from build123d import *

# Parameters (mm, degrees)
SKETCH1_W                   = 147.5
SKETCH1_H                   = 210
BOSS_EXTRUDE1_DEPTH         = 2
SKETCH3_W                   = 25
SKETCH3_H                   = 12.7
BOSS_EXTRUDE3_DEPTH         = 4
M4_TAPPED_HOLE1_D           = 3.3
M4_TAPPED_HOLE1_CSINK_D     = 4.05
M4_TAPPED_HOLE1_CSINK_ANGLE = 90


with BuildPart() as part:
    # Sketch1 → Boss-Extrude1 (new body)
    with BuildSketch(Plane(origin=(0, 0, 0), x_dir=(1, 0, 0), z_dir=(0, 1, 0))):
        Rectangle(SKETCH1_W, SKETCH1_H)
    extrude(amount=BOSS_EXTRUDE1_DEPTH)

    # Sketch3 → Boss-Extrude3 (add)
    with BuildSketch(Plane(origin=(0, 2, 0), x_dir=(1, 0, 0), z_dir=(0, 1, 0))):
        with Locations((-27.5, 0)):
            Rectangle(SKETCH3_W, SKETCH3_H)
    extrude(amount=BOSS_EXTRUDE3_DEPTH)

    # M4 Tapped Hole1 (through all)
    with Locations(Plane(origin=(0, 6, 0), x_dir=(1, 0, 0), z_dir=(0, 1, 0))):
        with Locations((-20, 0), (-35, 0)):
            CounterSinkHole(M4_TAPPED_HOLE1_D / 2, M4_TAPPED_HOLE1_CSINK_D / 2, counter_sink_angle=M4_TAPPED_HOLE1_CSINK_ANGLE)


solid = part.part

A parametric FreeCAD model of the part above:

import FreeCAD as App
import Part
import Sketcher

doc = App.newDocument("Part")
body = doc.addObject("PartDesign::Body", "Body")

# Sketch on XZ plane
sketch1 = body.newObject("Sketcher::SketchObject", "Sketch")
sketch1.AttachmentSupport = (doc.getObject("XZ_Plane"), [""])
sketch1.MapMode = "FlatFace"
sketch1.addGeometry([
    Part.LineSegment(App.Vector(-74, -105, 0), App.Vector(-74, 105, 0)),
    Part.LineSegment(App.Vector(-74, 105, 0), App.Vector(74, 105, 0)),
    Part.LineSegment(App.Vector(74, 105, 0), App.Vector(74, -105, 0)),
    Part.LineSegment(App.Vector(74, -105, 0), App.Vector(-74, -105, 0)),
], False)
sketch1.addConstraint([
    Sketcher.Constraint("Coincident", 0, 2, 1, 1),
    Sketcher.Constraint("Coincident", 1, 2, 2, 1),
    Sketcher.Constraint("Coincident", 2, 2, 3, 1),
    Sketcher.Constraint("Coincident", 3, 2, 0, 1),
    Sketcher.Constraint("Vertical", 0),
    Sketcher.Constraint("Horizontal", 1),
    Sketcher.Constraint("Vertical", 2),
    Sketcher.Constraint("Horizontal", 3),
    Sketcher.Constraint("Symmetric", 0, 2, 2, 2, -1, 1),
    Sketcher.Constraint("DistanceY", 0, 1, 0, 2, 210.0),
    Sketcher.Constraint("DistanceX", 1, 1, 1, 2, 147.5),
])
pad1 = body.newObject("PartDesign::Pad", "Pad")
pad1.Profile = sketch1
pad1.Length = 2
pad1.Reversed = True

# Sketch on XZ plane
sketch2 = body.newObject("Sketcher::SketchObject", "Sketch001")
sketch2.AttachmentSupport = (doc.getObject("XZ_Plane"), [""])
sketch2.MapMode = "FlatFace"
sketch2.AttachmentOffset = App.Placement(App.Vector(0, 0, -2), App.Rotation())
sketch2.addGeometry([
    Part.LineSegment(App.Vector(-40, -6, 0), App.Vector(-40, 6, 0)),
    Part.LineSegment(App.Vector(-40, 6, 0), App.Vector(-15, 6, 0)),
    Part.LineSegment(App.Vector(-15, 6, 0), App.Vector(-15, -6, 0)),
    Part.LineSegment(App.Vector(-15, -6, 0), App.Vector(-40, -6, 0)),
], False)
sketch2.addConstraint([
    Sketcher.Constraint("Coincident", 0, 2, 1, 1),
    Sketcher.Constraint("Coincident", 1, 2, 2, 1),
    Sketcher.Constraint("Coincident", 2, 2, 3, 1),
    Sketcher.Constraint("Coincident", 3, 2, 0, 1),
    Sketcher.Constraint("Vertical", 0),
    Sketcher.Constraint("Horizontal", 1),
    Sketcher.Constraint("Vertical", 2),
    Sketcher.Constraint("Horizontal", 3),
    Sketcher.Constraint("DistanceX", 1, 1, 1, 2, 25.0),
    Sketcher.Constraint("DistanceY", 0, 1, 0, 2, 12.7),
    Sketcher.Constraint("DistanceX", 0, 2, -1, 1, 40.0),
    Sketcher.Constraint("DistanceY", -1, 1, 0, 2, 6.35),
])
pad2 = body.newObject("PartDesign::Pad", "Pad001")
pad2.Profile = sketch2
pad2.Length = 4
pad2.Reversed = True

# Sketch on XZ plane
sketch3 = body.newObject("Sketcher::SketchObject", "Sketch002")
sketch3.AttachmentSupport = (doc.getObject("XZ_Plane"), [""])
sketch3.MapMode = "FlatFace"
sketch3.AttachmentOffset = App.Placement(App.Vector(0, 0, -6), App.Rotation())
sketch3.addGeometry([
    Part.Circle(App.Vector(-20, 0, 0), App.Vector(0, 0, 1), 1.6),
    Part.Circle(App.Vector(-35, 0, 0), App.Vector(0, 0, 1), 1.6),
], False)
sketch3.addConstraint([
    Sketcher.Constraint("Equal", 0, 1),
    Sketcher.Constraint("PointOnObject", 0, 3, -1),
    Sketcher.Constraint("PointOnObject", 1, 3, -1),
    Sketcher.Constraint("Diameter", 0, 3.3),
    Sketcher.Constraint("DistanceX", 0, 3, -1, 1, 20.0),
    Sketcher.Constraint("DistanceX", 1, 3, -1, 1, 35.0),
])
doc.recompute()
hole = body.newObject("PartDesign::Hole", "Hole")
hole.Profile = sketch3
hole.ThreadType = "None"
hole.Diameter = 3.3
hole.DepthType = "ThroughAll"
hole.HoleCutType = "Countersink"
hole.HoleCutDiameter = 4.05
hole.HoleCutCountersinkAngle = 90
hole.Reversed = True

doc.recompute()
